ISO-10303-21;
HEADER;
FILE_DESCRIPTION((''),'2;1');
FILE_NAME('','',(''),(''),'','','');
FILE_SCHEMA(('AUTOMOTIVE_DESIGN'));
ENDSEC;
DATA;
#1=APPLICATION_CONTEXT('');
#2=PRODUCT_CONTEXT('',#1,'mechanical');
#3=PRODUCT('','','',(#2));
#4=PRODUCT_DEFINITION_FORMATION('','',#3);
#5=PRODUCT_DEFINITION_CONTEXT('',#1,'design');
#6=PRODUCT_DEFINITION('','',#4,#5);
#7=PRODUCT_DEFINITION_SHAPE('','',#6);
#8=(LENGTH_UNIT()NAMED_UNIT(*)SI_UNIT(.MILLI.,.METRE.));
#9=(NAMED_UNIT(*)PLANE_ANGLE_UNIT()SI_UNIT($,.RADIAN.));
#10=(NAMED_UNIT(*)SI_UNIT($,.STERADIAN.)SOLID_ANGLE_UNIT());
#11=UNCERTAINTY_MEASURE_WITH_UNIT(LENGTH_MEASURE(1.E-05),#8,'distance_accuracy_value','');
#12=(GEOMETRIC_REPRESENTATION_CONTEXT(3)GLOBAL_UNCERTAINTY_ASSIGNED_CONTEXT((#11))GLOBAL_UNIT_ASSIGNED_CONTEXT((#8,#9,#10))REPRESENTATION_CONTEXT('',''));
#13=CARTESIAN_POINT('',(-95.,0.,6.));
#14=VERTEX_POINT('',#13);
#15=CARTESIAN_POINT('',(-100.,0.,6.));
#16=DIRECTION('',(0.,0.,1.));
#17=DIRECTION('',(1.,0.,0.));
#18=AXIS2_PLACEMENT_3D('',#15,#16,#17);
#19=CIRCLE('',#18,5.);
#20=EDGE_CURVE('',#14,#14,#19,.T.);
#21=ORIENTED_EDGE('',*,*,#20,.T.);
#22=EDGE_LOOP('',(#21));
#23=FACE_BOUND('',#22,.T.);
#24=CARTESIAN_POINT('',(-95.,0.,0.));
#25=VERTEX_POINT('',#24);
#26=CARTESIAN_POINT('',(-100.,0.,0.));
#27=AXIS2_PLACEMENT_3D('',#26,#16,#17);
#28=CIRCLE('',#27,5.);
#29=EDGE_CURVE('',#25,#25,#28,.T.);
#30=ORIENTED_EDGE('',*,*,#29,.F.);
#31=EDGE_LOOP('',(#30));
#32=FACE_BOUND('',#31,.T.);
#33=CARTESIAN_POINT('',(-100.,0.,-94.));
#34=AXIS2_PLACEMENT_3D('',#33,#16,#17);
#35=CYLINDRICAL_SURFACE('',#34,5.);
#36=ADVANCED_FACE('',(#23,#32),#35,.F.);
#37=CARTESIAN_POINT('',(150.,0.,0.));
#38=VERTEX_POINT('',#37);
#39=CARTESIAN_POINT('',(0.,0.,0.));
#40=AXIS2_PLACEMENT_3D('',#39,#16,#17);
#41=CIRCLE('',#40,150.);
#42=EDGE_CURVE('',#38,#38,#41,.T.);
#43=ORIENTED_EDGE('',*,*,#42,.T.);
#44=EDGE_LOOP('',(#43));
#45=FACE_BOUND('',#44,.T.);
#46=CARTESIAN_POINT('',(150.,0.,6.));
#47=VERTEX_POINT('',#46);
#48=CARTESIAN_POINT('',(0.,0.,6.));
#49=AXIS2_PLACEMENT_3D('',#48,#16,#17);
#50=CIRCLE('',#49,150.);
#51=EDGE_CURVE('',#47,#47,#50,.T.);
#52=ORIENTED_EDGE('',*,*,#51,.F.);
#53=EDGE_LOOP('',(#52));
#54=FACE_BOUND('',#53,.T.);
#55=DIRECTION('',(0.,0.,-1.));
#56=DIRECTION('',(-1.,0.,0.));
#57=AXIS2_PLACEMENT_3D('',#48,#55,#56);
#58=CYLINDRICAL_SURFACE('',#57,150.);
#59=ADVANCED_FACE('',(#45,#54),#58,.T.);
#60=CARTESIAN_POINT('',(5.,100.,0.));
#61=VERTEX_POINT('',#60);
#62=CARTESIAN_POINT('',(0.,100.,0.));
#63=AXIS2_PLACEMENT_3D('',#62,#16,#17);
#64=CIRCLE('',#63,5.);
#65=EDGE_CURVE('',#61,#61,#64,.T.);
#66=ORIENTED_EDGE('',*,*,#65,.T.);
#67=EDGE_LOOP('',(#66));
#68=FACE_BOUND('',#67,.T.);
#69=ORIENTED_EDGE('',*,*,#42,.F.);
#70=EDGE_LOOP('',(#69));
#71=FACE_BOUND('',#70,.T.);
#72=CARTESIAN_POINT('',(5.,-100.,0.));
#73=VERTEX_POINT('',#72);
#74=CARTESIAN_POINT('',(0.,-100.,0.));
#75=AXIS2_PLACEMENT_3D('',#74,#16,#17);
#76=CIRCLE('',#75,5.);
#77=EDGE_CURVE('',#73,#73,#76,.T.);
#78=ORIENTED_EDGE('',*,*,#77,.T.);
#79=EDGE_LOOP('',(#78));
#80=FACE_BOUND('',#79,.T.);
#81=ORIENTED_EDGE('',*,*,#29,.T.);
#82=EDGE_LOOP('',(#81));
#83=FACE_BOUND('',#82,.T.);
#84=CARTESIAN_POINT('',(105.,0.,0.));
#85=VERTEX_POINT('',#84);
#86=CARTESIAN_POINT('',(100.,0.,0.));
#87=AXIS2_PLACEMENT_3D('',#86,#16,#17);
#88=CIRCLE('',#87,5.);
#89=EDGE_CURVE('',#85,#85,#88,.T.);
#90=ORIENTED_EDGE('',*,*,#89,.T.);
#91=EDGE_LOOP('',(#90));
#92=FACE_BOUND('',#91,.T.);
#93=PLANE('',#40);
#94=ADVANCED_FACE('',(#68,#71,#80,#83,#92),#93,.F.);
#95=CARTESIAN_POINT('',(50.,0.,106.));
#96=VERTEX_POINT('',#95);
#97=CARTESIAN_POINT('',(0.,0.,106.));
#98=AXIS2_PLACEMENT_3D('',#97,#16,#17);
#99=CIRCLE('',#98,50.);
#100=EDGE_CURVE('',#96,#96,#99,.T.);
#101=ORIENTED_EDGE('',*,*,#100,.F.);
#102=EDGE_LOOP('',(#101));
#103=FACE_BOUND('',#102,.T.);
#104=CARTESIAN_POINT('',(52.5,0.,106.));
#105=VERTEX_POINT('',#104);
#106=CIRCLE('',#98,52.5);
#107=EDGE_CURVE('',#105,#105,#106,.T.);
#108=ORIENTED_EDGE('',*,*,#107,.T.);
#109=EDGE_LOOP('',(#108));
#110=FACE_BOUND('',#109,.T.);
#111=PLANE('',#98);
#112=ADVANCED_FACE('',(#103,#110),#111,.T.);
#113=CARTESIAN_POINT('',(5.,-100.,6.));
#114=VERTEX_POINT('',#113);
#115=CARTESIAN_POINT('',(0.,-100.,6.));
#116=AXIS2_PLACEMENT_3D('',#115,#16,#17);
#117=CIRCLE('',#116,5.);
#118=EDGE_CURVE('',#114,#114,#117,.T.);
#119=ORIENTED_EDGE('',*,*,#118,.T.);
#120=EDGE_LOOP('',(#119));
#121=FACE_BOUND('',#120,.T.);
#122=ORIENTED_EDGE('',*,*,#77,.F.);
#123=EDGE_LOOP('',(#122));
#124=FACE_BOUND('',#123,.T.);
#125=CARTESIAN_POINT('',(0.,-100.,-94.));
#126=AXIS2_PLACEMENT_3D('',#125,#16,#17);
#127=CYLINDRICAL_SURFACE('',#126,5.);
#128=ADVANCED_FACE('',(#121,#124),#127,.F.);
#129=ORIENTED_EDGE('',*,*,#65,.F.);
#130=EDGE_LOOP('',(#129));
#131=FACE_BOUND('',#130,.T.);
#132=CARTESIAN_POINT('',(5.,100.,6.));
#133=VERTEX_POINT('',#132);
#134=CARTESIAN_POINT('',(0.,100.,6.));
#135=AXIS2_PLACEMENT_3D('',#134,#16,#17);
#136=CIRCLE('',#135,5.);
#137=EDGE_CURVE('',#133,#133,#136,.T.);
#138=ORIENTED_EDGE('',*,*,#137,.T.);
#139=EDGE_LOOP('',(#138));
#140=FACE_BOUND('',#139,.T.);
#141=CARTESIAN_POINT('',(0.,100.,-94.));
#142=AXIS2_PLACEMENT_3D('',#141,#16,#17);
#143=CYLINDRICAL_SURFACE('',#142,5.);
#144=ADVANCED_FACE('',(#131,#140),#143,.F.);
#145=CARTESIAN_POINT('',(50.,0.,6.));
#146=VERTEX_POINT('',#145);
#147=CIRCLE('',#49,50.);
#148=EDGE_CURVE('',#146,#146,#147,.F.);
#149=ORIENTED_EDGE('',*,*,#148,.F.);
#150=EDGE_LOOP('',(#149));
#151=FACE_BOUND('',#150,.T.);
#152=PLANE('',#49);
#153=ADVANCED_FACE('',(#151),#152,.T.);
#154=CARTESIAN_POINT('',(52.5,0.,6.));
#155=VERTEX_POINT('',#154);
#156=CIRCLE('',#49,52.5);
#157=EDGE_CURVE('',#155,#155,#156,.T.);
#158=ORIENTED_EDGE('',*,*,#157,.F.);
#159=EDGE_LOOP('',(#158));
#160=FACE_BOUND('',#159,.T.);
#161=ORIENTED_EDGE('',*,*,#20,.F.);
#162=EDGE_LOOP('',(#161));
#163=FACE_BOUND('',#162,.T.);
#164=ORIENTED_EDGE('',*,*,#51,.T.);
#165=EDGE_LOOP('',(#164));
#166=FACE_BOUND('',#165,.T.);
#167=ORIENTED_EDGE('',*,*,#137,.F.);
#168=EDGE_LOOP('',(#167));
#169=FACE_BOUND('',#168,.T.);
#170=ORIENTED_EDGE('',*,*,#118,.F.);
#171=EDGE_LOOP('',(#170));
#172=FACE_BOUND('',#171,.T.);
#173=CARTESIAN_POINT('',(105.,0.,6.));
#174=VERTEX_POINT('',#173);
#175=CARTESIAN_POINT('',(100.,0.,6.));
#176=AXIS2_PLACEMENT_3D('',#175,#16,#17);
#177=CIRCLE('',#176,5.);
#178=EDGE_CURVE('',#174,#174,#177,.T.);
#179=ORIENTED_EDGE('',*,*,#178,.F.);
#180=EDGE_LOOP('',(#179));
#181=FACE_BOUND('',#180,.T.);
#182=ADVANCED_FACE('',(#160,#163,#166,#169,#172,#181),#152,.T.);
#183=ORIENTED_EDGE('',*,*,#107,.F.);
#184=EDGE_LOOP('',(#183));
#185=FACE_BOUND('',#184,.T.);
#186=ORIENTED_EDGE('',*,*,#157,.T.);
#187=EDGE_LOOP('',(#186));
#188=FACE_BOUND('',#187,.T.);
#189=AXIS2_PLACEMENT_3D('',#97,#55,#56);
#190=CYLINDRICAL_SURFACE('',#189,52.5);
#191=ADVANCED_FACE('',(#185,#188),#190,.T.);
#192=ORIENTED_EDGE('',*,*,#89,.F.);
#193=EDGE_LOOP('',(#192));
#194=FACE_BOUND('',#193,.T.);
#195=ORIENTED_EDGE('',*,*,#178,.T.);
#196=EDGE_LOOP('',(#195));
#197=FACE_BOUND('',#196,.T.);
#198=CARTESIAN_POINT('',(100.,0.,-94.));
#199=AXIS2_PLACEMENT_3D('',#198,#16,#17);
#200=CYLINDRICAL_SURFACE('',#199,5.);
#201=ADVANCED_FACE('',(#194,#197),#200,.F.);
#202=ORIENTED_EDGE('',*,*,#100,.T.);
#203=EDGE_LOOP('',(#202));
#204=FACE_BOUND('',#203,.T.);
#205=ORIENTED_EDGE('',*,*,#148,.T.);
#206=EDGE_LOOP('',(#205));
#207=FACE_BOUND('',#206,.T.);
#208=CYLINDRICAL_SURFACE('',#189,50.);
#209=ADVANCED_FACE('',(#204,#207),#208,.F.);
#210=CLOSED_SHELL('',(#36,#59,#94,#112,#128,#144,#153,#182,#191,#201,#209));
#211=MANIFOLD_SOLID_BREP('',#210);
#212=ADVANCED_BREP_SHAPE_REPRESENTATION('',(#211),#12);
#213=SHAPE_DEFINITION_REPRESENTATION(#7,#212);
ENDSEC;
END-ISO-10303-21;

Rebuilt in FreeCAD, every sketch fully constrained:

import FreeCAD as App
import Part
import Sketcher
Q = App.Units.Quantity

doc = App.newDocument("Part")
body = doc.addObject("PartDesign::Body", "Body")

# Sketch on XY plane
sketch1 = doc.addObject("Sketcher::SketchObject", "Sketch")
body.addObject(sketch1)
sketch1.AttachmentSupport = (doc.XY_Plane, [""])
sketch1.MapMode = "FlatFace"
sketch1.addGeometry(Part.Circle(App.Vector(0, 0, 0), App.Vector(0, 0, 1), 150), False)
sketch1.addConstraint([
    Sketcher.Constraint("Coincident", 0, 3, -1, 1),
    Sketcher.Constraint("Diameter", 0, Q("300 mm")),
])
pad1 = doc.addObject("PartDesign::Pad", "Pad")
body.addObject(pad1)
pad1.Profile = sketch1
pad1.Length = 6

# Sketch on XY plane
sketch2 = doc.addObject("Sketcher::SketchObject", "Sketch001")
body.addObject(sketch2)
sketch2.AttachmentSupport = (doc.XY_Plane, [""])
sketch2.MapMode = "FlatFace"
sketch2.AttachmentOffset = App.Placement(App.Vector(0, 0, 6), App.Rotation())
sketch2.addGeometry([
    Part.Circle(App.Vector(0, 0, 0), App.Vector(0, 0, 1), 52.5),
    Part.Circle(App.Vector(0, 0, 0), App.Vector(0, 0, 1), 50),
], False)
sketch2.addConstraint([
    Sketcher.Constraint("Coincident", 0, 3, -1, 1),
    Sketcher.Constraint("Coincident", 1, 3, -1, 1),
    Sketcher.Constraint("Diameter", 0, Q("105 mm")),
    Sketcher.Constraint("Diameter", 1, Q("100 mm")),
])
pad2 = doc.addObject("PartDesign::Pad", "Pad001")
body.addObject(pad2)
pad2.Profile = sketch2
pad2.Length = 100

# Sketch on XY plane
sketch3 = doc.addObject("Sketcher::SketchObject", "Sketch002")
body.addObject(sketch3)
sketch3.AttachmentSupport = (doc.XY_Plane, [""])
sketch3.MapMode = "FlatFace"
sketch3.AttachmentOffset = App.Placement(App.Vector(0, 0, 6), App.Rotation())
sketch3.addGeometry([
    Part.Circle(App.Vector(100, 0, 0), App.Vector(0, 0, 1), 5),
    Part.Circle(App.Vector(0, -100, 0), App.Vector(0, 0, 1), 5),
    Part.Circle(App.Vector(-100, 0, 0), App.Vector(0, 0, 1), 5),
    Part.Circle(App.Vector(0, 100, 0), App.Vector(0, 0, 1), 5),
], False)
sketch3.addConstraint([
    Sketcher.Constraint("Equal", 0, 1),
    Sketcher.Constraint("Equal", 1, 2),
    Sketcher.Constraint("Equal", 2, 3),
    Sketcher.Constraint("Symmetric", 0, 3, 2, 3, -1, 1),
    Sketcher.Constraint("Symmetric", 1, 3, 3, 3, -1, 1),
    Sketcher.Constraint("PointOnObject", 0, 3, -1),
    Sketcher.Constraint("PointOnObject", 1, 3, -2),
    Sketcher.Constraint("Diameter", 0, Q("10 mm")),
    Sketcher.Constraint("DistanceX", -1, 1, 0, 3, Q("100 mm")),
    Sketcher.Constraint("DistanceY", 1, 3, -1, 1, Q("100 mm")),
])
pocket1 = doc.addObject("PartDesign::Pocket", "Pocket")
body.addObject(pocket1)
pocket1.Profile = sketch3
pocket1.Length = 100

doc.recompute()
